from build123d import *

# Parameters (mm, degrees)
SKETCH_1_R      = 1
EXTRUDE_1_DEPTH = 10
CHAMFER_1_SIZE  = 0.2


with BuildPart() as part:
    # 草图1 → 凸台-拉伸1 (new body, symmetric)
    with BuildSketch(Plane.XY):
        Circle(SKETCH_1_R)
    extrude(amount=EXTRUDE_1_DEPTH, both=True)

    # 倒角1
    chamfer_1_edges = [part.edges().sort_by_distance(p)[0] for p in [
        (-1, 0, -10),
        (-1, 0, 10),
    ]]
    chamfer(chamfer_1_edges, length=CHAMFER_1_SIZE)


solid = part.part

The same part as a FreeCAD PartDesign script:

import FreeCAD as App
import Part
import Sketcher

V = App.Vector
Q = App.Units.Quantity


def edges_at(feature, points):
    """Names of the edges that pass closest to the given points."""
    edges = feature.Shape.Edges
    near = lambda p: min(range(len(edges)), key=lambda i: edges[i].distToShape(Part.Vertex(*p))[0])
    return sorted({f"Edge{near(p) + 1}" for p in points})

doc = App.newDocument("Part")
params = doc.addObject("Spreadsheet::Sheet", "Params")
for row, (alias, value) in enumerate([
    ("sketch1_diameter", "2 mm"),
    ("pad1_length", "20 mm"),
    ("chamfer_size", "0.2 mm"),
], start=1):
    params.set(f"A{row}", alias)
    params.set(f"B{row}", "=" + value)
    params.setAlias(f"B{row}", alias)

body = doc.addObject("PartDesign::Body", "Body")

# Sketch on XY plane
sketch1 = body.newObject("Sketcher::SketchObject", "Sketch")
sketch1.AttachmentSupport = (doc.getObject("XY_Plane"), [""])
sketch1.MapMode = "FlatFace"
sketch1.addGeometry(Part.Circle(V(0, 0, 0), V(0, 0, 1), 1), False)
sketch1.addConstraint(Sketcher.Constraint("Coincident", 0, 3, -1, 1))
sketch1.addConstraint(Sketcher.Constraint("Diameter", 0, Q("2 mm")))
sketch1.setExpression("Constraints[1]", "Params.sketch1_diameter")
pad1 = body.newObject("PartDesign::Pad", "Pad")
pad1.Profile = sketch1
pad1.setExpression("Length", "Params.pad1_length")
pad1.Midplane = True
doc.recompute()

chamfer = body.newObject("PartDesign::Chamfer", "Chamfer")
chamfer.Base = (pad1, edges_at(pad1, [(-1, 0, -10), (-1, 0, 10)]))
chamfer.setExpression("Size", "Params.chamfer_size")

doc.recompute()
